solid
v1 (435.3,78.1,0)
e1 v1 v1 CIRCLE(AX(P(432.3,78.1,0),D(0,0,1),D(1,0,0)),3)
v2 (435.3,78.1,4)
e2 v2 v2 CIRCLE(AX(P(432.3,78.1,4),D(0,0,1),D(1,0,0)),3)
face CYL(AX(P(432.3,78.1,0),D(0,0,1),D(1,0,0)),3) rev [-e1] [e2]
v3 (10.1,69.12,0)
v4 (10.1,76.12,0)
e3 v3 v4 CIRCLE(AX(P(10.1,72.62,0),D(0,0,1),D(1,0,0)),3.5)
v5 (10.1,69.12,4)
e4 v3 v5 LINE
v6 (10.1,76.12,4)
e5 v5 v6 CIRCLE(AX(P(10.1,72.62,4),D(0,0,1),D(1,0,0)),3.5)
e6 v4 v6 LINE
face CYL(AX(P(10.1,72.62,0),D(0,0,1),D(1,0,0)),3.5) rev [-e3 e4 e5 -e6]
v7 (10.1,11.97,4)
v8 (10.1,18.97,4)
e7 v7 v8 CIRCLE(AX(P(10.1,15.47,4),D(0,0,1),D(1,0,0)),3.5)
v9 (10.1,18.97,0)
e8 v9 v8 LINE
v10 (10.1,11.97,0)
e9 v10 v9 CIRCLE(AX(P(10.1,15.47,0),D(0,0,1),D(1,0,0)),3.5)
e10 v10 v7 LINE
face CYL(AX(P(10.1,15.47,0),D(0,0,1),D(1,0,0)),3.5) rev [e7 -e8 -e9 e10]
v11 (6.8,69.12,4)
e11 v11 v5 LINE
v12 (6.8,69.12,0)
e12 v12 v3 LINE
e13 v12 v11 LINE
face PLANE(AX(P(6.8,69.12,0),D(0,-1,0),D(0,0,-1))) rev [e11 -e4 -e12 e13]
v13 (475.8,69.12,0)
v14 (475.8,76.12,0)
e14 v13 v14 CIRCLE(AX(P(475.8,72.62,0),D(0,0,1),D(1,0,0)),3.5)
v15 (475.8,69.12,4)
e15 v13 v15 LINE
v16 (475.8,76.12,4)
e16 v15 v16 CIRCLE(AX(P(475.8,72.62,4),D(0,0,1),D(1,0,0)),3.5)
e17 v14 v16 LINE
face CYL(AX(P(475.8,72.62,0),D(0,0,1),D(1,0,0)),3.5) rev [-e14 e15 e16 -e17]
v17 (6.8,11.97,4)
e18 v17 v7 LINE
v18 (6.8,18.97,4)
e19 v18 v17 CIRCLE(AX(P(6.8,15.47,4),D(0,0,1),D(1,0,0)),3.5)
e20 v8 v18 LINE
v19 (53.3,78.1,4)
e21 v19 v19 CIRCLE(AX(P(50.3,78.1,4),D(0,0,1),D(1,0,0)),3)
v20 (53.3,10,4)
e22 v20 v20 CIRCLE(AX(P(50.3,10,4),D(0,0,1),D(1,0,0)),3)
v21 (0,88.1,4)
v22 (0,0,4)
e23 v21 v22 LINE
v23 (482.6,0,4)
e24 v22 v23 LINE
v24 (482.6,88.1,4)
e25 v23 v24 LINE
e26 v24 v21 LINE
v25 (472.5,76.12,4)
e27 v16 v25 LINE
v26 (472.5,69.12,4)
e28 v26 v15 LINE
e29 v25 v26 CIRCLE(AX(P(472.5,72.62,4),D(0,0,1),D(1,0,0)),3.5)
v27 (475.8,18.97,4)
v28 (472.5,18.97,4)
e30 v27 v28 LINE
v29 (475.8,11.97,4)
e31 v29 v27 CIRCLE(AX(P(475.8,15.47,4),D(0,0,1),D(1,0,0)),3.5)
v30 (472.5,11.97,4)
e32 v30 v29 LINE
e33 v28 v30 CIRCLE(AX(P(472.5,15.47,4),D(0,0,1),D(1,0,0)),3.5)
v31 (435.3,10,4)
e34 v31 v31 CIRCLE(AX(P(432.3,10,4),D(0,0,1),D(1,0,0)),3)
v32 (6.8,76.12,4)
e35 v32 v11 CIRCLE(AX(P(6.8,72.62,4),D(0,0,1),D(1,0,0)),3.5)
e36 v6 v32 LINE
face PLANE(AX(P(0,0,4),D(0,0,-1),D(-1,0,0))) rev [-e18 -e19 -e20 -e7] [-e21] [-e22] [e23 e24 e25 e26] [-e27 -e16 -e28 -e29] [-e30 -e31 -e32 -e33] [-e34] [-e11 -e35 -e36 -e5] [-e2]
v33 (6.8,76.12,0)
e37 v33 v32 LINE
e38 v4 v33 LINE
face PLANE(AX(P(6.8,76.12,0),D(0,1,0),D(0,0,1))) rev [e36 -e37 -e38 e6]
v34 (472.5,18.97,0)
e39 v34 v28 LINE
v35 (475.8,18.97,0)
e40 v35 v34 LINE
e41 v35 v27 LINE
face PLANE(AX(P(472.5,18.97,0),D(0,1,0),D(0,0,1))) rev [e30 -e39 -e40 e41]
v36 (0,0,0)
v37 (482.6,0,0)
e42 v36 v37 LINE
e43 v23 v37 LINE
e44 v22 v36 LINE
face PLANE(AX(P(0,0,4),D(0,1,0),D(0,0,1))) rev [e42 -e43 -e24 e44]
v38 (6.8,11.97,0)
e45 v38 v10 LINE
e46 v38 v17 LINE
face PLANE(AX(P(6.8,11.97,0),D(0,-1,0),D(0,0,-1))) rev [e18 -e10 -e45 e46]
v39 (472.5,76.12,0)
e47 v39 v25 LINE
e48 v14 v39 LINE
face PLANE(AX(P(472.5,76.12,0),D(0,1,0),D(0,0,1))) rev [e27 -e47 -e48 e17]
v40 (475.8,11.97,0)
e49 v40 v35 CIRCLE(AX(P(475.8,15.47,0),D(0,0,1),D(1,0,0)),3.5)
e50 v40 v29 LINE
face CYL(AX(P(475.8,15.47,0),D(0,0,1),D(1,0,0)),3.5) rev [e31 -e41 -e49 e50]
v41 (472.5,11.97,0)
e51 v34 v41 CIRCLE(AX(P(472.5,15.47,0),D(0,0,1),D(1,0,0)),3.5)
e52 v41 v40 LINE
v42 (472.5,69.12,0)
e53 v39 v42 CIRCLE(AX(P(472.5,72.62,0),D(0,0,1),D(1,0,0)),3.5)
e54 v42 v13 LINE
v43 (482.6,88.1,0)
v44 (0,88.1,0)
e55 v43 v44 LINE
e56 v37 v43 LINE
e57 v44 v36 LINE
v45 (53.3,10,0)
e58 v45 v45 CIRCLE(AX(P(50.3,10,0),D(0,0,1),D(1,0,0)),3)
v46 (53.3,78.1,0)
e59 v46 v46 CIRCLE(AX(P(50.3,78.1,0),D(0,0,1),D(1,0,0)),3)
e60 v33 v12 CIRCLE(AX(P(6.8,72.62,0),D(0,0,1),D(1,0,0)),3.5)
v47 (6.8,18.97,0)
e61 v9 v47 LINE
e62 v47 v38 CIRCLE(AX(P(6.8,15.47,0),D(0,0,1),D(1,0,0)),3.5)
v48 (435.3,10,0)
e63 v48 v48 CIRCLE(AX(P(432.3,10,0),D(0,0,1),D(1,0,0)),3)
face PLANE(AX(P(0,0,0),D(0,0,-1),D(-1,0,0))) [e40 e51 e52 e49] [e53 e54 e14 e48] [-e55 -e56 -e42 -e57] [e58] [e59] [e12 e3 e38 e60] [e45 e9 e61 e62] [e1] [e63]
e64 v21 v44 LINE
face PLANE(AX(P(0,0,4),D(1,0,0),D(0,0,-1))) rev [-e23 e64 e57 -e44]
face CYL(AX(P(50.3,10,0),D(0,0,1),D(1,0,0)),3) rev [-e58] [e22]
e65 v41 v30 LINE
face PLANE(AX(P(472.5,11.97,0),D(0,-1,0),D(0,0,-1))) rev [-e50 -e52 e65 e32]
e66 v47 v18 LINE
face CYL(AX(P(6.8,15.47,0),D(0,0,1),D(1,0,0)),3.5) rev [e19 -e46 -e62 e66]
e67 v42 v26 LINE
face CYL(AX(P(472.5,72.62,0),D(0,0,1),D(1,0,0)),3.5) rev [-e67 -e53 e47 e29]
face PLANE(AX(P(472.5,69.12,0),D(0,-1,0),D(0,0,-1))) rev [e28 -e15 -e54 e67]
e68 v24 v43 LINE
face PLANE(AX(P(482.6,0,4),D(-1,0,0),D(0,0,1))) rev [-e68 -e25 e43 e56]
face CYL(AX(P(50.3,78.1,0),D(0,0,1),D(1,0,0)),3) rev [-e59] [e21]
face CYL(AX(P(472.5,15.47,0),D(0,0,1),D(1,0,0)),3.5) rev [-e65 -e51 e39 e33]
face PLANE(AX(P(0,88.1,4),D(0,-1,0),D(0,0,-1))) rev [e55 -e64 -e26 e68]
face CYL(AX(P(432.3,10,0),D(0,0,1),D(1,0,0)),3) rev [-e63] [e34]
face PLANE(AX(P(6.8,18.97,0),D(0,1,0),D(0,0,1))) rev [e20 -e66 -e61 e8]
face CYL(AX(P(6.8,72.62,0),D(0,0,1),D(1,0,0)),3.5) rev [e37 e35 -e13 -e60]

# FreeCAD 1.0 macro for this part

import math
import FreeCAD as App
import Part
import Sketcher


def add_polygon(sketch, points):
    """Adds a closed chain of lines whose ends are joined by coincident constraints."""
    first, n = sketch.GeometryCount, len(points)
    for a, b in zip(points, points[1:] + points[:1]):
        sketch.addGeometry(Part.LineSegment(App.Vector(*a, 0), App.Vector(*b, 0)), False)
    for i in range(n):
        sketch.addConstraint(Sketcher.Constraint("Coincident", first + i, 2, first + (i + 1) % n, 1))

doc = App.newDocument("Part")
body = doc.addObject("PartDesign::Body", "Body")

sketch1 = body.newObject("Sketcher::SketchObject", "Sketch")
sketch1.AttachmentSupport = (doc.getObject("XY_Plane"), [""])
sketch1.MapMode = "FlatFace"
add_polygon(sketch1, [(0, 88.1), (0, 0), (482.6, 0), (482.6, 88.1)])
sketch1.addConstraint([
    Sketcher.Constraint("Vertical", 0),
    Sketcher.Constraint("Horizontal", 1),
    Sketcher.Constraint("Vertical", 2),
    Sketcher.Constraint("Horizontal", 3),
    Sketcher.Constraint("Coincident", 0, 2, -1, 1),
    Sketcher.Constraint("DistanceX", 1, 1, 1, 2, 482.6),
    Sketcher.Constraint("DistanceY", 0, 2, 0, 1, 88.1),
])
pad1 = body.newObject("PartDesign::Pad", "Pad")
pad1.Profile = sketch1
pad1.Length = 4

sketch2 = body.newObject("Sketcher::SketchObject", "Sketch001")
sketch2.AttachmentSupport = (doc.getObject("XY_Plane"), [""])
sketch2.MapMode = "FlatFace"
sketch2.AttachmentOffset = App.Placement(App.Vector(0, 0, 4), App.Rotation())
sketch2.addGeometry([
    Part.LineSegment(App.Vector(10.1, 76.12, 0), App.Vector(6.8, 76.12, 0)),
    Part.ArcOfCircle(Part.Circle(App.Vector(6.8, 72.62, 0), App.Vector(0, 0, 1), 3.5), math.radians(90), math.radians(270)),
    Part.LineSegment(App.Vector(6.8, 69.12, 0), App.Vector(10.1, 69.12, 0)),
    Part.ArcOfCircle(Part.Circle(App.Vector(10.1, 72.62, 0), App.Vector(0, 0, 1), 3.5), math.radians(-90), math.radians(90)),
    Part.LineSegment(App.Vector(475.8, 76.12, 0), App.Vector(472.5, 76.12, 0)),
    Part.ArcOfCircle(Part.Circle(App.Vector(472.5, 72.62, 0), App.Vector(0, 0, 1), 3.5), math.radians(90), math.radians(270)),
    Part.LineSegment(App.Vector(472.5, 69.12, 0), App.Vector(475.8, 69.12, 0)),
    Part.ArcOfCircle(Part.Circle(App.Vector(475.8, 72.62, 0), App.Vector(0, 0, 1), 3.5), math.radians(-90), math.radians(90)),
    Part.LineSegment(App.Vector(475.8, 18.97, 0), App.Vector(472.5, 18.97, 0)),
    Part.ArcOfCircle(Part.Circle(App.Vector(472.5, 15.47, 0), App.Vector(0, 0, 1), 3.5), math.radians(90), math.radians(270)),
    Part.LineSegment(App.Vector(472.5, 11.97, 0), App.Vector(475.8, 11.97, 0)),
    Part.ArcOfCircle(Part.Circle(App.Vector(475.8, 15.47, 0), App.Vector(0, 0, 1), 3.5), math.radians(-90), math.radians(90)),
    Part.LineSegment(App.Vector(10.1, 18.97, 0), App.Vector(6.8, 18.97, 0)),
    Part.ArcOfCircle(Part.Circle(App.Vector(6.8, 15.47, 0), App.Vector(0, 0, 1), 3.5), math.radians(90), math.radians(270)),
    Part.LineSegment(App.Vector(6.8, 11.97, 0), App.Vector(10.1, 11.97, 0)),
    Part.ArcOfCircle(Part.Circle(App.Vector(10.1, 15.47, 0), App.Vector(0, 0, 1), 3.5), math.radians(-90), math.radians(90)),
], False)
sketch2.addConstraint([
    Sketcher.Constraint("Tangent", 0, 2, 1, 1),
    Sketcher.Constraint("Tangent", 1, 2, 2, 1),
    Sketcher.Constraint("Tangent", 2, 2, 3, 1),
    Sketcher.Constraint("Tangent", 3, 2, 0, 1),
    Sketcher.Constraint("Tangent", 4, 2, 5, 1),
    Sketcher.Constraint("Tangent", 5, 2, 6, 1),
    Sketcher.Constraint("Tangent", 6, 2, 7, 1),
    Sketcher.Constraint("Tangent", 7, 2, 4, 1),
    Sketcher.Constraint("Tangent", 8, 2, 9, 1),
    Sketcher.Constraint("Tangent", 9, 2, 10, 1),
    Sketcher.Constraint("Tangent", 10, 2, 11, 1),
    Sketcher.Constraint("Tangent", 11, 2, 8, 1),
    Sketcher.Constraint("Tangent", 12, 2, 13, 1),
    Sketcher.Constraint("Tangent", 13, 2, 14, 1),
    Sketcher.Constraint("Tangent", 14, 2, 15, 1),
    Sketcher.Constraint("Tangent", 15, 2, 12, 1),
    Sketcher.Constraint("Horizontal", 0),
    Sketcher.Constraint("Horizontal", 2),
    Sketcher.Constraint("Horizontal", 4),
    Sketcher.Constraint("Horizontal", 6),
    Sketcher.Constraint("Horizontal", 8),
    Sketcher.Constraint("Horizontal", 10),
    Sketcher.Constraint("Horizontal", 12),
    Sketcher.Constraint("Horizontal", 14),
    Sketcher.Constraint("Equal", 3, 5),
    Sketcher.Constraint("Equal", 7, 9),
    Sketcher.Constraint("Equal", 11, 13),
    Sketcher.Constraint("Horizontal", 3, 3, 5, 3),
    Sketcher.Constraint("Horizontal", 11, 3, 13, 3),
    Sketcher.Constraint("Vertical", 5, 3, 9, 3),
    Sketcher.Constraint("Vertical", 7, 3, 11, 3),
    Sketcher.Constraint("Vertical", 1, 3, 13, 3),
    Sketcher.Constraint("Vertical", 3, 3, 15, 3),
    Sketcher.Constraint("Equal", 2, 4),
    Sketcher.Constraint("Radius", 1, 3.5),
    Sketcher.Constraint("DistanceX", 0, 2, 0, 1, 3.3),
    Sketcher.Constraint("DistanceX", 1, 3, 7, 3, 469.0),
    Sketcher.Constraint("DistanceX", -1, 1, 1, 3, 6.8),
    Sketcher.Constraint("DistanceY", -1, 1, 1, 3, 72.62),
    Sketcher.Constraint("DistanceY", -1, 1, 9, 3, 15.47),
])
pocket1 = body.newObject("PartDesign::Pocket", "Pocket")
pocket1.Profile = sketch2
pocket1.Type = "ThroughAll"

sketch3 = body.newObject("Sketcher::SketchObject", "Sketch002")
sketch3.AttachmentSupport = (doc.getObject("XY_Plane"), [""])
sketch3.MapMode = "FlatFace"
sketch3.AttachmentOffset = App.Placement(App.Vector(0, 0, 4), App.Rotation())
sketch3.addGeometry([
    Part.Circle(App.Vector(50.3, 78.1, 0), App.Vector(0, 0, 1), 3),
    Part.Circle(App.Vector(432.3, 78.1, 0), App.Vector(0, 0, 1), 3),
    Part.Circle(App.Vector(432.3, 10, 0), App.Vector(0, 0, 1), 3),
    Part.Circle(App.Vector(50.3, 10, 0), App.Vector(0, 0, 1), 3),
], False)
sketch3.addConstraint([
    Sketcher.Constraint("Equal", 0, 1),
    Sketcher.Constraint("Equal", 1, 2),
    Sketcher.Constraint("Equal", 2, 3),
    Sketcher.Constraint("Horizontal", 0, 3, 1, 3),
    Sketcher.Constraint("Horizontal", 2, 3, 3, 3),
    Sketcher.Constraint("Vertical", 1, 3, 2, 3),
    Sketcher.Constraint("Vertical", 0, 3, 3, 3),
    Sketcher.Constraint("Diameter", 0, 6.0),
    Sketcher.Constraint("DistanceY", -1, 1, 2, 3, 10.0),
    Sketcher.Constraint("DistanceX", 0, 3, 1, 3, 382.0),
    Sketcher.Constraint("DistanceX", -1, 1, 0, 3, 50.3),
    Sketcher.Constraint("DistanceY", -1, 1, 0, 3, 78.1),
])
pocket2 = body.newObject("PartDesign::Pocket", "Pocket001")
pocket2.Profile = sketch3
pocket2.Type = "ThroughAll"

doc.recompute()
